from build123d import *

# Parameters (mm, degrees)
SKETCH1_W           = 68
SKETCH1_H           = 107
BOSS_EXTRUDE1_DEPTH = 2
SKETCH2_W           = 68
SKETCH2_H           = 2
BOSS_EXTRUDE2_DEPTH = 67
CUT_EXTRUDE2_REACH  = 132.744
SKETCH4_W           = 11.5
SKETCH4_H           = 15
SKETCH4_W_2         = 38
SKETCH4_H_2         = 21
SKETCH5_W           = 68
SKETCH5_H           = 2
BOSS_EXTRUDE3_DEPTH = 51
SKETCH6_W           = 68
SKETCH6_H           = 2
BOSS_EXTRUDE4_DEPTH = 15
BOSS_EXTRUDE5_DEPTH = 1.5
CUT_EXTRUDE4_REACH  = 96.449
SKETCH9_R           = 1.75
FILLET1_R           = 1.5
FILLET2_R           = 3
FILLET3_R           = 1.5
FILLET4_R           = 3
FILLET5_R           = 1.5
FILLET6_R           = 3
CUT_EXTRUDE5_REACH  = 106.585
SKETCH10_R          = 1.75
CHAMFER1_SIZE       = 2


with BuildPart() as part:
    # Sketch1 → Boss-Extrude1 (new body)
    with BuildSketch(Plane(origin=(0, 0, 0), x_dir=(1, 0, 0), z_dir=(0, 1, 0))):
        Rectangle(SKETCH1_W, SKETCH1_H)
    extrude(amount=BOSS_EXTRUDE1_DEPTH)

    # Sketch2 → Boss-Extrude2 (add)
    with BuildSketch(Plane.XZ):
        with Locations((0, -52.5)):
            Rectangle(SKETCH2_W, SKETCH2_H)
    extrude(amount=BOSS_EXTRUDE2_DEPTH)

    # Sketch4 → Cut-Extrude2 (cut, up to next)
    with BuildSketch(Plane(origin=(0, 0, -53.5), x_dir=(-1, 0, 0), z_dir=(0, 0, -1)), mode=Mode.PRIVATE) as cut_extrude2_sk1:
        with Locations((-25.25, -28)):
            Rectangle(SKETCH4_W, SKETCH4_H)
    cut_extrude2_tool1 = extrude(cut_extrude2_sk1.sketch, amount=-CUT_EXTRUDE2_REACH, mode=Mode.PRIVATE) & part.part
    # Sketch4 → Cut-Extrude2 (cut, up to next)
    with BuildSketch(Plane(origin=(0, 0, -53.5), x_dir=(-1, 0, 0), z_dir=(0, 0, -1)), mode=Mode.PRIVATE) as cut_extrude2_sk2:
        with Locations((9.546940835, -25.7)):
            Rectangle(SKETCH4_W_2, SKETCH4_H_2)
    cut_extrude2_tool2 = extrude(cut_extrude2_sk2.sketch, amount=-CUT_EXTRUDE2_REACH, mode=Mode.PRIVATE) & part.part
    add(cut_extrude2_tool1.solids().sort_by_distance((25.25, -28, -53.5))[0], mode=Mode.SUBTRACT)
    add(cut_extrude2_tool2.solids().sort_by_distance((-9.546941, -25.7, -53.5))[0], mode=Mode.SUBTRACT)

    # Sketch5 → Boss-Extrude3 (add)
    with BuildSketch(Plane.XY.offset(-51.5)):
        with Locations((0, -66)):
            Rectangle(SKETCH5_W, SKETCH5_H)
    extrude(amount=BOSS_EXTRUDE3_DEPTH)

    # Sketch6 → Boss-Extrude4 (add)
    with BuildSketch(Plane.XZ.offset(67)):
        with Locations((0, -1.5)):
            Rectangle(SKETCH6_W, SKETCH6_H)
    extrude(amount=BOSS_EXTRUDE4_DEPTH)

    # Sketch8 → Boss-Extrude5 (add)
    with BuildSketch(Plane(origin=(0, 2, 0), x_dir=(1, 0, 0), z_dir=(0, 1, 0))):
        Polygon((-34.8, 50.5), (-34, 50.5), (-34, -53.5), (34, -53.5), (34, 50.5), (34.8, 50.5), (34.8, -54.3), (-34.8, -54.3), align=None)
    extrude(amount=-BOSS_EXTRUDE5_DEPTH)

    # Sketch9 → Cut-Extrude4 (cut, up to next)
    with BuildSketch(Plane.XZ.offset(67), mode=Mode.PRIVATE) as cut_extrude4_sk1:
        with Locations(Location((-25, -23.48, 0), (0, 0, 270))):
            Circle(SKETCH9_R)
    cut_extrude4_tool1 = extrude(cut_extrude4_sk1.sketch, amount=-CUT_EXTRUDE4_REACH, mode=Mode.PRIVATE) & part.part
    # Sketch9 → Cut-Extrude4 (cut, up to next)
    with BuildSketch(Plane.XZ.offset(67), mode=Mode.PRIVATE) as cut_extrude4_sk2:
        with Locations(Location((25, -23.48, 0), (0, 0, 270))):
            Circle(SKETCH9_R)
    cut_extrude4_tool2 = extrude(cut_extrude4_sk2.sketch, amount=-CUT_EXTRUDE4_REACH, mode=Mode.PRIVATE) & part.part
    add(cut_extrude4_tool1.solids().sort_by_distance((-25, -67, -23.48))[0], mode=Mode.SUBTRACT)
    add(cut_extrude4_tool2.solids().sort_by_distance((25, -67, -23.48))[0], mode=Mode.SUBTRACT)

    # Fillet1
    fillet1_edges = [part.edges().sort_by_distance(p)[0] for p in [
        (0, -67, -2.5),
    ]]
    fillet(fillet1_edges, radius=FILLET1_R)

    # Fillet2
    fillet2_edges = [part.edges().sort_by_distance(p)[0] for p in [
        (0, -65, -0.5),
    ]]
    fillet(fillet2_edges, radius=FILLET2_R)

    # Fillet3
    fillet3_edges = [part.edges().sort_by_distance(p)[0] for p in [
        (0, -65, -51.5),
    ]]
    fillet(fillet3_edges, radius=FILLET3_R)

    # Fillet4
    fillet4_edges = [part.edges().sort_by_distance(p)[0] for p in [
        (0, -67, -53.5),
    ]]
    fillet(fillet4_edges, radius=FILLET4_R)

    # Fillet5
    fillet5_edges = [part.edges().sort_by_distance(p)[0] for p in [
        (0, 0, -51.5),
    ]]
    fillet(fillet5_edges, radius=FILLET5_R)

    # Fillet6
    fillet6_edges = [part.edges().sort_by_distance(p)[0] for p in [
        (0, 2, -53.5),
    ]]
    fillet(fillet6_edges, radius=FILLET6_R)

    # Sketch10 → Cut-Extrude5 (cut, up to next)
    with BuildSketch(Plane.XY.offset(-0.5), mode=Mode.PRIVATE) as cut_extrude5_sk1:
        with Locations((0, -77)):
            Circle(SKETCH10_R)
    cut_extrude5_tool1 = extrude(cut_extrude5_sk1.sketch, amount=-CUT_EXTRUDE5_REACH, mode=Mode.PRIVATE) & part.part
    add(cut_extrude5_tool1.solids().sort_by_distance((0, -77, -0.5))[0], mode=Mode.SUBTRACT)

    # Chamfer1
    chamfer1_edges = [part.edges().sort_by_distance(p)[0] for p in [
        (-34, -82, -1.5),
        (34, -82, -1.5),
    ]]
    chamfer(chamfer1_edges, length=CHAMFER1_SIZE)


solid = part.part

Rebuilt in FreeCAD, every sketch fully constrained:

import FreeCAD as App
import Part
import Sketcher
from FreeCAD import Vector


def edges_at(feature, points):
    """Names of the edges that pass closest to the given points."""
    edges = feature.Shape.Edges
    near = lambda p: min(range(len(edges)), key=lambda i: edges[i].distToShape(Part.Vertex(*p))[0])
    return sorted({f"Edge{near(p) + 1}" for p in points})


def add_polygon(sketch, points):
    """Adds a closed chain of lines whose ends are joined by coincident constraints."""
    first, n = sketch.GeometryCount, len(points)
    for a, b in zip(points, points[1:] + points[:1]):
        sketch.addGeometry(Part.LineSegment(App.Vector(*a, 0), App.Vector(*b, 0)), False)
    for i in range(n):
        sketch.addConstraint(Sketcher.Constraint("Coincident", first + i, 2, first + (i + 1) % n, 1))

doc = App.newDocument("Part")
body = doc.addObject("PartDesign::Body", "Body")

# Sketch on XZ plane
sketch1 = body.newObject("Sketcher::SketchObject", "Sketch")
sketch1.AttachmentSupport = (doc.getObject("XZ_Plane"), [""])
sketch1.MapMode = "FlatFace"
add_polygon(sketch1, [(-34, -54), (-34, 54), (34, 54), (34, -54)])  # lines 0-3
sketch1.addConstraint([
    Sketcher.Constraint("Vertical", 0),
    Sketcher.Constraint("Horizontal", 1),
    Sketcher.Constraint("Vertical", 2),
    Sketcher.Constraint("Horizontal", 3),
    Sketcher.Constraint("Symmetric", 0, 2, 2, 2, -1, 1),
    Sketcher.Constraint("DistanceX", 1, 1, 1, 2, 68.0),
    Sketcher.Constraint("DistanceY", 0, 1, 0, 2, 107.0),
])
pad1 = body.newObject("PartDesign::Pad", "Pad")
pad1.Profile = sketch1
pad1.Length = 2
pad1.Reversed = True

# Sketch on XZ plane
sketch2 = body.newObject("Sketcher::SketchObject", "Sketch001")
sketch2.AttachmentSupport = (doc.getObject("XZ_Plane"), [""])
sketch2.MapMode = "FlatFace"
add_polygon(sketch2, [(-34, -51.5), (-34, -53.5), (34, -53.5), (34, -51.5)])  # lines 0-3
sketch2.addConstraint([
    Sketcher.Constraint("Vertical", 0),
    Sketcher.Constraint("Horizontal", 1),
    Sketcher.Constraint("Vertical", 2),
    Sketcher.Constraint("Horizontal", 3),
    Sketcher.Constraint("DistanceX", 1, 1, 1, 2, 68.0),
    Sketcher.Constraint("DistanceY", 0, 2, 0, 1, 2.0),
    Sketcher.Constraint("DistanceX", 0, 2, -1, 1, 34.0),
    Sketcher.Constraint("DistanceY", 0, 2, -1, 1, 53.5),
])
pad2 = body.newObject("PartDesign::Pad", "Pad001")
pad2.Profile = sketch2
pad2.Length = 67

# Sketch on XY plane
sketch3 = body.newObject("Sketcher::SketchObject", "Sketch002")
sketch3.AttachmentSupport = (doc.getObject("XY_Plane"), [""])
sketch3.MapMode = "FlatFace"
sketch3.AttachmentOffset = App.Placement(Vector(0, 0, -53.5), App.Rotation())
add_polygon(sketch3, [(31, -20), (31, -36), (20, -36), (20, -20)])  # lines 0-3
sketch3.addConstraint([
    Sketcher.Constraint("Vertical", 0),
    Sketcher.Constraint("Horizontal", 1),
    Sketcher.Constraint("Vertical", 2),
    Sketcher.Constraint("Horizontal", 3),
    Sketcher.Constraint("DistanceY", 0, 2, 0, 1, 15.0),
    Sketcher.Constraint("DistanceX", 1, 2, 1, 1, 11.5),
    Sketcher.Constraint("DistanceX", -1, 1, 0, 2, 31.0),
    Sketcher.Constraint("DistanceY", 0, 2, -1, 1, 35.5),
])
pocket1 = body.newObject("PartDesign::Pocket", "Pocket")
pocket1.Profile = sketch3
pocket1.Type = "UpToFirst"
pocket1.Reversed = True

# Sketch on XY plane
sketch4 = body.newObject("Sketcher::SketchObject", "Sketch003")
sketch4.AttachmentSupport = (doc.getObject("XY_Plane"), [""])
sketch4.MapMode = "FlatFace"
sketch4.AttachmentOffset = App.Placement(Vector(0, 0, -53.5), App.Rotation())
add_polygon(sketch4, [(9, -15), (9, -36), (-29, -36), (-29, -15)])  # lines 0-3
sketch4.addConstraint([
    Sketcher.Constraint("Vertical", 0),
    Sketcher.Constraint("Horizontal", 1),
    Sketcher.Constraint("Vertical", 2),
    Sketcher.Constraint("Horizontal", 3),
    Sketcher.Constraint("DistanceX", 1, 2, 1, 1, 38.0),
    Sketcher.Constraint("DistanceY", 0, 2, 0, 1, 21.0),
    Sketcher.Constraint("DistanceY", 0, 2, -1, 1, 36.2),
    Sketcher.Constraint("DistanceX", -1, 1, 0, 2, 9.453059),
])
pocket2 = body.newObject("PartDesign::Pocket", "Pocket001")
pocket2.Profile = sketch4
pocket2.Type = "UpToFirst"
pocket2.Reversed = True

# Sketch on XY plane
sketch5 = body.newObject("Sketcher::SketchObject", "Sketch004")
sketch5.AttachmentSupport = (doc.getObject("XY_Plane"), [""])
sketch5.MapMode = "FlatFace"
sketch5.AttachmentOffset = App.Placement(Vector(0, 0, -51.5), App.Rotation())
add_polygon(sketch5, [(-34, -65), (-34, -67), (34, -67), (34, -65)])  # lines 0-3
sketch5.addConstraint([
    Sketcher.Constraint("Vertical", 0),
    Sketcher.Constraint("Horizontal", 1),
    Sketcher.Constraint("Vertical", 2),
    Sketcher.Constraint("Horizontal", 3),
    Sketcher.Constraint("DistanceX", 1, 1, 1, 2, 68.0),
    Sketcher.Constraint("DistanceY", 0, 2, 0, 1, 2.0),
    Sketcher.Constraint("DistanceX", 0, 2, -1, 1, 34.0),
    Sketcher.Constraint("DistanceY", 0, 2, -1, 1, 67.0),
])
pad3 = body.newObject("PartDesign::Pad", "Pad002")
pad3.Profile = sketch5
pad3.Length = 51

# Sketch on XZ plane
sketch6 = body.newObject("Sketcher::SketchObject", "Sketch005")
sketch6.AttachmentSupport = (doc.getObject("XZ_Plane"), [""])
sketch6.MapMode = "FlatFace"
sketch6.AttachmentOffset = App.Placement(Vector(0, 0, 67), App.Rotation())
add_polygon(sketch6, [(-34, -0.5), (-34, -2.5), (34, -2.5), (34, -0.5)])  # lines 0-3
sketch6.addConstraint([
    Sketcher.Constraint("Vertical", 0),
    Sketcher.Constraint("Horizontal", 1),
    Sketcher.Constraint("Vertical", 2),
    Sketcher.Constraint("Horizontal", 3),
    Sketcher.Constraint("DistanceX", 1, 1, 1, 2, 68.0),
    Sketcher.Constraint("DistanceY", 0, 2, 0, 1, 2.0),
    Sketcher.Constraint("DistanceX", 0, 2, -1, 1, 34.0),
    Sketcher.Constraint("DistanceY", 0, 2, -1, 1, 2.5),
])
pad4 = body.newObject("PartDesign::Pad", "Pad003")
pad4.Profile = sketch6
pad4.Length = 15

# Sketch on XZ plane
sketch7 = body.newObject("Sketcher::SketchObject", "Sketch006")
sketch7.AttachmentSupport = (doc.getObject("XZ_Plane"), [""])
sketch7.MapMode = "FlatFace"
sketch7.AttachmentOffset = App.Placement(Vector(0, 0, -2), App.Rotation())
add_polygon(sketch7, [(-34, -50.5), (-34.8, -50.5), (-34.8, 54.3), (34.8, 54.3), (34.8, -50.5), (34, -50.5), (34, 53.5), (-34, 53.5)])  # lines 0-7
sketch7.addConstraint([
    Sketcher.Constraint("Horizontal", 0),
    Sketcher.Constraint("Vertical", 1),
    Sketcher.Constraint("Horizontal", 2),
    Sketcher.Constraint("Vertical", 3),
    Sketcher.Constraint("Horizontal", 4),
    Sketcher.Constraint("Vertical", 5),
    Sketcher.Constraint("Horizontal", 6),
    Sketcher.Constraint("Vertical", 7),
    Sketcher.Constraint("Symmetric", 0, 2, 3, 2, -2),
    Sketcher.Constraint("Equal", 0, 4),
    Sketcher.Constraint("DistanceX", 6, 2, 6, 1, 68.0),
    Sketcher.Constraint("DistanceY", 5, 1, 5, 2, 104.0),
    Sketcher.Constraint("DistanceX", 0, 2, 0, 1, 0.8),
    Sketcher.Constraint("DistanceY", 1, 1, 1, 2, 104.8),
    Sketcher.Constraint("DistanceY", 0, 2, -1, 1, 50.5),
])
pad5 = body.newObject("PartDesign::Pad", "Pad004")
pad5.Profile = sketch7
pad5.Length = 1.5

# Sketch on XZ plane
sketch8 = body.newObject("Sketcher::SketchObject", "Sketch007")
sketch8.AttachmentSupport = (doc.getObject("XZ_Plane"), [""])
sketch8.MapMode = "FlatFace"
sketch8.AttachmentOffset = App.Placement(Vector(0, 0, 67), App.Rotation())
sketch8.addGeometry(Part.Circle(Vector(-25, -23.5, 0), Vector(0, 0, 1), 1.8), False)
sketch8.addConstraint([
    Sketcher.Constraint("Diameter", 0, 3.5),
    Sketcher.Constraint("DistanceX", 0, 3, -1, 1, 25.0),
    Sketcher.Constraint("DistanceY", 0, 3, -1, 1, 23.48),
])
pocket3 = body.newObject("PartDesign::Pocket", "Pocket002")
pocket3.Profile = sketch8
pocket3.Type = "UpToFirst"

# Sketch on XZ plane
sketch9 = body.newObject("Sketcher::SketchObject", "Sketch008")
sketch9.AttachmentSupport = (doc.getObject("XZ_Plane"), [""])
sketch9.MapMode = "FlatFace"
sketch9.AttachmentOffset = App.Placement(Vector(0, 0, 67), App.Rotation())
sketch9.addGeometry(Part.Circle(Vector(25, -23.5, 0), Vector(0, 0, 1), 1.8), False)
sketch9.addConstraint([
    Sketcher.Constraint("Diameter", 0, 3.5),
    Sketcher.Constraint("DistanceX", -1, 1, 0, 3, 25.0),
    Sketcher.Constraint("DistanceY", 0, 3, -1, 1, 23.48),
])
pocket4 = body.newObject("PartDesign::Pocket", "Pocket003")
pocket4.Profile = sketch9
pocket4.Type = "UpToFirst"
doc.recompute()

fillet = body.newObject("PartDesign::Fillet", "Fillet")
fillet.Base = (pocket4, edges_at(pocket4, [(0, -67, -2.5)]))
fillet.Radius = 1.5
doc.recompute()

fillet2 = body.newObject("PartDesign::Fillet", "Fillet001")
fillet2.Base = (fillet, edges_at(fillet, [(0, -65, -0.5)]))
fillet2.Radius = 3
doc.recompute()

fillet3 = body.newObject("PartDesign::Fillet", "Fillet002")
fillet3.Base = (fillet2, edges_at(fillet2, [(0, -65, -51.5)]))
fillet3.Radius = 1.5
doc.recompute()

fillet4 = body.newObject("PartDesign::Fillet", "Fillet003")
fillet4.Base = (fillet3, edges_at(fillet3, [(0, -67, -53.5)]))
fillet4.Radius = 3
doc.recompute()

fillet5 = body.newObject("PartDesign::Fillet", "Fillet004")
fillet5.Base = (fillet4, edges_at(fillet4, [(0, 0, -51.5)]))
fillet5.Radius = 1.5
doc.recompute()

fillet6 = body.newObject("PartDesign::Fillet", "Fillet005")
fillet6.Base = (fillet5, edges_at(fillet5, [(0, 2, -53.5)]))
fillet6.Radius = 3

# Sketch on XY plane
sketch10 = body.newObject("Sketcher::SketchObject", "Sketch009")
sketch10.AttachmentSupport = (doc.getObject("XY_Plane"), [""])
sketch10.MapMode = "FlatFace"
sketch10.AttachmentOffset = App.Placement(Vector(0, 0, -0.5), App.Rotation())
sketch10.addGeometry(Part.Circle(Vector(0, -77, 0), Vector(0, 0, 1), 1.8), False)
sketch10.addConstraint([
    Sketcher.Constraint("PointOnObject", 0, 3, -2),
    Sketcher.Constraint("Diameter", 0, 3.5),
    Sketcher.Constraint("DistanceY", 0, 3, -1, 1, 77.0),
])
pocket5 = body.newObject("PartDesign::Pocket", "Pocket004")
pocket5.Profile = sketch10
pocket5.Type = "UpToFirst"
doc.recompute()

chamfer = body.newObject("PartDesign::Chamfer", "Chamfer")
chamfer.Base = (pocket5, edges_at(pocket5, [(-34, -82, -1.5), (34, -82, -1.5)]))
chamfer.Size = 2

doc.recompute()
